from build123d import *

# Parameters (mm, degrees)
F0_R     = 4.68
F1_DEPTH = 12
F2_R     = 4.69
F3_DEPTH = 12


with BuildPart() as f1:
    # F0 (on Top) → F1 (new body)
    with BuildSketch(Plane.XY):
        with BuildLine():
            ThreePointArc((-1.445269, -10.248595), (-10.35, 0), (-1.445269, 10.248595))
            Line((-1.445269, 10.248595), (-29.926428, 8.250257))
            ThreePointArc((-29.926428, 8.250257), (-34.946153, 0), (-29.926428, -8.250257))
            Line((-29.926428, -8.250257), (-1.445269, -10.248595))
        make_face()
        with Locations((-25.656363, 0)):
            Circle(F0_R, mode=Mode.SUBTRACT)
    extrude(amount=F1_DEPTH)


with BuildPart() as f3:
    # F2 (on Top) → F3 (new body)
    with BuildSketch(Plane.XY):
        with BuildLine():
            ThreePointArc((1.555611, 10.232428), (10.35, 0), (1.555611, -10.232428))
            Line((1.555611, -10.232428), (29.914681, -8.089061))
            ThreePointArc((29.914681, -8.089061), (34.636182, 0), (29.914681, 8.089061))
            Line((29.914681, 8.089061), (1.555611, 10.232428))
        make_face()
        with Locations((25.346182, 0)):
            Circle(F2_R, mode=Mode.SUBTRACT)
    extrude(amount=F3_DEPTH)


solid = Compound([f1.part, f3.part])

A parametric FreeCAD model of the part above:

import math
import FreeCAD as App
import Part
import Sketcher

doc = App.newDocument("Part")
body = doc.addObject("PartDesign::Body", "Body")

# Sketch on XY plane
sketch1 = body.newObject("Sketcher::SketchObject", "Sketch")
sketch1.AttachmentSupport = (doc.getObject("XY_Plane"), [""])
sketch1.MapMode = "FlatFace"
sketch1.addGeometry([
    Part.ArcOfCircle(Part.Circle(App.Vector(0, 0, 0), App.Vector(0, 0, 1), 10.35), math.radians(98.026988), math.radians(261.973012)),  # 0
    Part.LineSegment(App.Vector(-1.445269, 10.248595, 0), App.Vector(-29.926428, 8.250257, 0)),  # 1
    Part.ArcOfCircle(Part.Circle(App.Vector(-25.656363, 0, 0), App.Vector(0, 0, 1), 9.28979), math.radians(117.364614), math.radians(242.635386)),  # 2
    Part.LineSegment(App.Vector(-29.926428, -8.250257, 0), App.Vector(-1.445269, -10.248595, 0)),  # 3
    Part.Circle(App.Vector(-25.656363, 0, 0), App.Vector(0, 0, 1), 4.68),  # 4
], False)
sketch1.addConstraint([
    Sketcher.Constraint("Coincident", 0, 1, 1, 1),
    Sketcher.Constraint("Coincident", 1, 2, 2, 1),
    Sketcher.Constraint("Coincident", 2, 2, 3, 1),
    Sketcher.Constraint("Coincident", 3, 2, 0, 2),
    Sketcher.Constraint("Coincident", 0, 3, -1, 1),
    Sketcher.Constraint("Coincident", 4, 3, 2, 3),
    Sketcher.Constraint("Symmetric", 1, 2, 2, 2, -1),
    Sketcher.Constraint("Vertical", 0, 1, 3, 2),
    Sketcher.Constraint("Diameter", 4, 9.36),
    Sketcher.Constraint("Radius", 0, 10.35),
    Sketcher.Constraint("Radius", 2, 9.28979),
    Sketcher.Constraint("Distance", 1, 28.551178),
    Sketcher.Constraint("DistanceX", 0, 1, -1, 1, 1.445269),
    Sketcher.Constraint("DistanceX", 1, 2, -1, 1, 29.926428),
])
pad1 = body.newObject("PartDesign::Pad", "Pad")
pad1.Profile = sketch1
pad1.Length = 12
body2 = doc.addObject("PartDesign::Body", "Body001")

# Sketch on XY plane
sketch2 = body2.newObject("Sketcher::SketchObject", "Sketch001")
sketch2.AttachmentSupport = (doc.getObject("XY_Plane001"), [""])
sketch2.MapMode = "FlatFace"
sketch2.addGeometry([
    Part.ArcOfCircle(Part.Circle(App.Vector(0, 0, 0), App.Vector(0, 0, 1), 10.35), math.radians(-81.355652), math.radians(81.355652)),  # 0
    Part.LineSegment(App.Vector(1.555611, -10.232428, 0), App.Vector(29.914681, -8.089061, 0)),  # 1
    Part.ArcOfCircle(Part.Circle(App.Vector(25.346183, 0, 0), App.Vector(0, 0, 1), 9.289999), math.radians(-60.543332), math.radians(60.543332)),  # 2
    Part.LineSegment(App.Vector(29.914681, 8.089061, 0), App.Vector(1.555611, 10.232428, 0)),  # 3
    Part.Circle(App.Vector(25.346182, 0, 0), App.Vector(0, 0, 1), 4.69),  # 4
], False)
sketch2.addConstraint([
    Sketcher.Constraint("Coincident", 0, 1, 1, 1),
    Sketcher.Constraint("Coincident", 1, 2, 2, 1),
    Sketcher.Constraint("Coincident", 2, 2, 3, 1),
    Sketcher.Constraint("Coincident", 3, 2, 0, 2),
    Sketcher.Constraint("Coincident", 0, 3, -1, 1),
    Sketcher.Constraint("Coincident", 4, 3, 2, 3),
    Sketcher.Constraint("Symmetric", 1, 2, 2, 2, -1),
    Sketcher.Constraint("Vertical", 0, 1, 3, 2),
    Sketcher.Constraint("Diameter", 4, 9.38),
    Sketcher.Constraint("Radius", 0, 10.35),
    Sketcher.Constraint("Radius", 2, 9.289999),
    Sketcher.Constraint("DistanceX", 2, 3, 1, 2, 4.568498),
    Sketcher.Constraint("DistanceX", -1, 1, 4, 3, 25.346182),
    Sketcher.Constraint("DistanceX", -1, 1, 0, 1, 1.555611),
])
pad2 = body2.newObject("PartDesign::Pad", "Pad001")
pad2.Profile = sketch2
pad2.Length = 12

doc.recompute()
